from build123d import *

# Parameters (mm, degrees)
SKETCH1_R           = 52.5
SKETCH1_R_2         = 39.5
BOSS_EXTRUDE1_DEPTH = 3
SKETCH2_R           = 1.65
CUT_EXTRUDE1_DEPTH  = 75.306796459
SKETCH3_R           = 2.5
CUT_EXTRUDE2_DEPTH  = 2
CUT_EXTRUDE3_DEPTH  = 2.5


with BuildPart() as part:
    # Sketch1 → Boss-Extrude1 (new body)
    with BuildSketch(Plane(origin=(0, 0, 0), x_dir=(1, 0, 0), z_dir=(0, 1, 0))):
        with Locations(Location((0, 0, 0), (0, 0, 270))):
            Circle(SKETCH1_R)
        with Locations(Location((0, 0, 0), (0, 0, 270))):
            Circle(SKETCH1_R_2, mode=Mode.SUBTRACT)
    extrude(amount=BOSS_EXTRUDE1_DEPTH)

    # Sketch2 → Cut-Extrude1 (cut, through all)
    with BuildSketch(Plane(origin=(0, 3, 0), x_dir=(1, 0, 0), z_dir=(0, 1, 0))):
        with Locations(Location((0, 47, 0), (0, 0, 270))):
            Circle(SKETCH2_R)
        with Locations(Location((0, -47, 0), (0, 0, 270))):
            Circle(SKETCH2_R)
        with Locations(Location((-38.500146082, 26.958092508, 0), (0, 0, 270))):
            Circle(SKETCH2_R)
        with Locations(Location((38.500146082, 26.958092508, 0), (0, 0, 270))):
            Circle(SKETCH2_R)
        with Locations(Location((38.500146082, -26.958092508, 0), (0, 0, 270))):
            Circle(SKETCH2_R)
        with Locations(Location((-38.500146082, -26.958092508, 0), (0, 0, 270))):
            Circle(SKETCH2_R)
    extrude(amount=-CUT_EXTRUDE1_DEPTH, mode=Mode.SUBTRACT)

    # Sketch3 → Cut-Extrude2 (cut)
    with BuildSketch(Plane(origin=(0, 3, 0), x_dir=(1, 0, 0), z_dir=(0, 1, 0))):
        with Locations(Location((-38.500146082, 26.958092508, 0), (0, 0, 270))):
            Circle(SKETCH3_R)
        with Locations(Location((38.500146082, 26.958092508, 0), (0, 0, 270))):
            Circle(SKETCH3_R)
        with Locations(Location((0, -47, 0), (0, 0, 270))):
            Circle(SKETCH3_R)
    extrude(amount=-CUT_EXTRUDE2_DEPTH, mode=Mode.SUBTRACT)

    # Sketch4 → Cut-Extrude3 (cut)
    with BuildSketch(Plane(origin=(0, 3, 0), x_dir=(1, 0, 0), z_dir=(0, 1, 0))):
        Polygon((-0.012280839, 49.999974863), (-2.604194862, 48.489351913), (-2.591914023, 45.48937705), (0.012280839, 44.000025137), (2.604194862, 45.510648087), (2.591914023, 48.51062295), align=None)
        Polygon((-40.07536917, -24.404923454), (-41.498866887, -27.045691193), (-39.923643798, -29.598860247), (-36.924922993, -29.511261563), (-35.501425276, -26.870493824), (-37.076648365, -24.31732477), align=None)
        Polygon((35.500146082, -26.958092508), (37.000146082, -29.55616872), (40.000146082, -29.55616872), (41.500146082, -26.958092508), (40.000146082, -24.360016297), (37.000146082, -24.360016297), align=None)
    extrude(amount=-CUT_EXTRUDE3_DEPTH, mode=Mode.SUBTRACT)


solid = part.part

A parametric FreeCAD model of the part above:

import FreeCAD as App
import Part
import Sketcher

V = App.Vector
Q = App.Units.Quantity

doc = App.newDocument("Part")
body = doc.addObject("PartDesign::Body", "Body")

# Sketch on XZ plane
sketch1 = doc.addObject("Sketcher::SketchObject", "Sketch")
body.addObject(sketch1)
sketch1.AttachmentSupport = (doc.XZ_Plane, [""])
sketch1.MapMode = "FlatFace"
sketch1.addGeometry([
    Part.Circle(V(0, 0, 0), V(0, 0, 1), 52.5),
    Part.Circle(V(0, 0, 0), V(0, 0, 1), 39.5),
], False)
sketch1.addConstraint([
    Sketcher.Constraint("Coincident", 0, 3, -1, 1),
    Sketcher.Constraint("Coincident", 1, 3, -1, 1),
    Sketcher.Constraint("Diameter", 0, Q("105 mm")),
    Sketcher.Constraint("Diameter", 1, Q("79 mm")),
])
pad1 = doc.addObject("PartDesign::Pad", "Pad")
body.addObject(pad1)
pad1.Profile = sketch1
pad1.Length = 3
pad1.Reversed = True

# Sketch on XZ plane
sketch2 = doc.addObject("Sketcher::SketchObject", "Sketch001")
body.addObject(sketch2)
sketch2.AttachmentSupport = (doc.XZ_Plane, [""])
sketch2.MapMode = "FlatFace"
sketch2.AttachmentOffset = App.Placement(V(0, 0, -3), App.Rotation())
sketch2.addGeometry([
    Part.Circle(V(0, -47, 0), V(0, 0, 1), 1.65),  # 0
    Part.Circle(V(0, 47, 0), V(0, 0, 1), 1.65),  # 1
    Part.Circle(V(-38.500146, -26.958093, 0), V(0, 0, 1), 1.65),  # 2
    Part.Circle(V(38.500146, -26.958093, 0), V(0, 0, 1), 1.65),  # 3
    Part.Circle(V(38.500146, 26.958093, 0), V(0, 0, 1), 1.65),  # 4
    Part.Circle(V(-38.500146, 26.958093, 0), V(0, 0, 1), 1.65),  # 5
], False)
sketch2.addConstraint([
    Sketcher.Constraint("Equal", 0, 1),
    Sketcher.Constraint("Equal", 1, 2),
    Sketcher.Constraint("Equal", 2, 3),
    Sketcher.Constraint("Equal", 3, 4),
    Sketcher.Constraint("Equal", 4, 5),
    Sketcher.Constraint("Symmetric", 0, 3, 1, 3, -1, 1),
    Sketcher.Constraint("Symmetric", 2, 3, 4, 3, -1, 1),
    Sketcher.Constraint("Symmetric", 3, 3, 5, 3, -1, 1),
    Sketcher.Constraint("Symmetric", 2, 3, 3, 3, -2),
    Sketcher.Constraint("PointOnObject", 0, 3, -2),
    Sketcher.Constraint("Diameter", 0, Q("3.3 mm")),
    Sketcher.Constraint("DistanceY", 0, 3, -1, 1, Q("47 mm")),
    Sketcher.Constraint("DistanceX", 2, 3, -1, 1, Q("38.500146 mm")),
    Sketcher.Constraint("DistanceY", 2, 3, -1, 1, Q("26.958093 mm")),
])
pocket1 = doc.addObject("PartDesign::Pocket", "Pocket")
body.addObject(pocket1)
pocket1.Profile = sketch2
pocket1.Type = "ThroughAll"
pocket1.Reversed = True

# Sketch on XZ plane
sketch3 = doc.addObject("Sketcher::SketchObject", "Sketch002")
body.addObject(sketch3)
sketch3.AttachmentSupport = (doc.XZ_Plane, [""])
sketch3.MapMode = "FlatFace"
sketch3.AttachmentOffset = App.Placement(V(0, 0, -3), App.Rotation())
sketch3.addGeometry([
    Part.Circle(V(-38.500146, -26.958093, 0), V(0, 0, 1), 2.5),
    Part.Circle(V(38.500146, -26.958093, 0), V(0, 0, 1), 2.5),
    Part.Circle(V(0, 47, 0), V(0, 0, 1), 2.5),
], False)
sketch3.addConstraint([
    Sketcher.Constraint("Equal", 0, 1),
    Sketcher.Constraint("Equal", 1, 2),
    Sketcher.Constraint("Symmetric", 0, 3, 1, 3, -2),
    Sketcher.Constraint("PointOnObject", 2, 3, -2),
    Sketcher.Constraint("Diameter", 0, Q("5 mm")),
    Sketcher.Constraint("DistanceY", -1, 1, 2, 3, Q("47 mm")),
    Sketcher.Constraint("DistanceX", 0, 3, -1, 1, Q("38.500146 mm")),
    Sketcher.Constraint("DistanceY", 0, 3, -1, 1, Q("26.958093 mm")),
])
pocket2 = doc.addObject("PartDesign::Pocket", "Pocket001")
body.addObject(pocket2)
pocket2.Profile = sketch3
pocket2.Length = 2
pocket2.Reversed = True

# Sketch on XZ plane
sketch4 = doc.addObject("Sketcher::SketchObject", "Sketch003")
body.addObject(sketch4)
sketch4.AttachmentSupport = (doc.XZ_Plane, [""])
sketch4.MapMode = "FlatFace"
sketch4.AttachmentOffset = App.Placement(V(0, 0, -3), App.Rotation())
sketch4.addGeometry([
    Part.LineSegment(V(-0.012281, -49.999975, 0), V(-2.604195, -48.489352, 0)),  # 0
    Part.LineSegment(V(-2.604195, -48.489352, 0), V(-2.591914, -45.489377, 0)),  # 1
    Part.LineSegment(V(-2.591914, -45.489377, 0), V(0.012281, -44.000025, 0)),  # 2
    Part.LineSegment(V(0.012281, -44.000025, 0), V(2.604195, -45.510648, 0)),  # 3
    Part.LineSegment(V(2.604195, -45.510648, 0), V(2.591914, -48.510623, 0)),  # 4
    Part.LineSegment(V(2.591914, -48.510623, 0), V(-0.012281, -49.999975, 0)),  # 5
    Part.LineSegment(V(-40.075369, 24.404923, 0), V(-41.498867, 27.045691, 0)),  # 6
    Part.LineSegment(V(-41.498867, 27.045691, 0), V(-39.923644, 29.59886, 0)),  # 7
    Part.LineSegment(V(-39.923644, 29.59886, 0), V(-36.924923, 29.511262, 0)),  # 8
    Part.LineSegment(V(-36.924923, 29.511262, 0), V(-35.501425, 26.870494, 0)),  # 9
    Part.LineSegment(V(-35.501425, 26.870494, 0), V(-37.076648, 24.317325, 0)),  # 10
    Part.LineSegment(V(-37.076648, 24.317325, 0), V(-40.075369, 24.404923, 0)),  # 11
    Part.LineSegment(V(35.500146, 26.958093, 0), V(37.000146, 29.556169, 0)),  # 12
    Part.LineSegment(V(37.000146, 29.556169, 0), V(40.000146, 29.556169, 0)),  # 13
    Part.LineSegment(V(40.000146, 29.556169, 0), V(41.500146, 26.958093, 0)),  # 14
    Part.LineSegment(V(41.500146, 26.958093, 0), V(40.000146, 24.360016, 0)),  # 15
    Part.LineSegment(V(40.000146, 24.360016, 0), V(37.000146, 24.360016, 0)),  # 16
    Part.LineSegment(V(37.000146, 24.360016, 0), V(35.500146, 26.958093, 0)),  # 17
], False)
sketch4.addConstraint([
    Sketcher.Constraint("Coincident", 0, 2, 1, 1),
    Sketcher.Constraint("Coincident", 1, 2, 2, 1),
    Sketcher.Constraint("Coincident", 2, 2, 3, 1),
    Sketcher.Constraint("Coincident", 3, 2, 4, 1),
    Sketcher.Constraint("Coincident", 4, 2, 5, 1),
    Sketcher.Constraint("Coincident", 5, 2, 0, 1),
    Sketcher.Constraint("Coincident", 6, 2, 7, 1),
    Sketcher.Constraint("Coincident", 7, 2, 8, 1),
    Sketcher.Constraint("Coincident", 8, 2, 9, 1),
    Sketcher.Constraint("Coincident", 9, 2, 10, 1),
    Sketcher.Constraint("Coincident", 10, 2, 11, 1),
    Sketcher.Constraint("Coincident", 11, 2, 6, 1),
    Sketcher.Constraint("Coincident", 12, 2, 13, 1),
    Sketcher.Constraint("Coincident", 13, 2, 14, 1),
    Sketcher.Constraint("Coincident", 14, 2, 15, 1),
    Sketcher.Constraint("Coincident", 15, 2, 16, 1),
    Sketcher.Constraint("Coincident", 16, 2, 17, 1),
    Sketcher.Constraint("Coincident", 17, 2, 12, 1),
    Sketcher.Constraint("Horizontal", 13),
    Sketcher.Constraint("Horizontal", 16),
    Sketcher.Constraint("DistanceX", 13, 1, 13, 2, Q("3 mm")),
    Sketcher.Constraint("DistanceX", 16, 2, 16, 1, Q("3 mm")),
    Sketcher.Constraint("Distance", 0, Q("3 mm")),
    Sketcher.Constraint("Distance", 1, Q("3 mm")),
    Sketcher.Constraint("Distance", 2, Q("3 mm")),
    Sketcher.Constraint("Distance", 3, Q("3 mm")),
    Sketcher.Constraint("Distance", 4, Q("3 mm")),
    Sketcher.Constraint("Distance", 5, Q("3 mm")),
    Sketcher.Constraint("Distance", 6, Q("3 mm")),
    Sketcher.Constraint("Distance", 7, Q("3 mm")),
    Sketcher.Constraint("Distance", 8, Q("3 mm")),
    Sketcher.Constraint("Distance", 9, Q("3 mm")),
    Sketcher.Constraint("Distance", 10, Q("3 mm")),
    Sketcher.Constraint("Distance", 11, Q("3 mm")),
    Sketcher.Constraint("Distance", 12, Q("3 mm")),
    Sketcher.Constraint("Distance", 14, Q("3 mm")),
    Sketcher.Constraint("Distance", 15, Q("3 mm")),
    Sketcher.Constraint("Distance", 17, Q("3 mm")),
    Sketcher.Constraint("DistanceX", 12, 2, 15, 2, Q("3 mm")),
    Sketcher.Constraint("DistanceX", 17, 2, 14, 2, Q("6 mm")),
    Sketcher.Constraint("DistanceY", 8, 2, 7, 2, Q("0.087599 mm")),
    Sketcher.Constraint("DistanceY", 10, 2, 11, 2, Q("0.087599 mm")),
    Sketcher.Constraint("DistanceY", 9, 2, 14, 2, Q("0.087599 mm")),
    Sketcher.Constraint("DistanceY", 0, 2, -1, 1, Q("48.489352 mm")),
    Sketcher.Constraint("DistanceX", -1, 1, 2, 2, Q("0.012281 mm")),
    Sketcher.Constraint("DistanceY", 3, 2, -1, 1, Q("45.510648 mm")),
    Sketcher.Constraint("DistanceX", 5, 2, -1, 1, Q("0.012281 mm")),
    Sketcher.Constraint("DistanceY", -1, 1, 6, 2, Q("27.045691 mm")),
    Sketcher.Constraint("DistanceY", -1, 1, 7, 2, Q("29.59886 mm")),
    Sketcher.Constraint("DistanceX", 10, 2, -1, 1, Q("37.076648 mm")),
    Sketcher.Constraint("DistanceY", -1, 1, 12, 2, Q("29.556169 mm")),
    Sketcher.Constraint("DistanceX", 0, 2, 1, 2, Q("0.012281 mm")),
    Sketcher.Constraint("DistanceY", 1, 2, 2, 2, Q("1.489352 mm")),
    Sketcher.Constraint("DistanceX", 9, 2, 12, 2, Q("72.501571 mm")),
])
pocket3 = doc.addObject("PartDesign::Pocket", "Pocket002")
body.addObject(pocket3)
pocket3.Profile = sketch4
pocket3.Length = 2.5
pocket3.Reversed = True

doc.recompute()
